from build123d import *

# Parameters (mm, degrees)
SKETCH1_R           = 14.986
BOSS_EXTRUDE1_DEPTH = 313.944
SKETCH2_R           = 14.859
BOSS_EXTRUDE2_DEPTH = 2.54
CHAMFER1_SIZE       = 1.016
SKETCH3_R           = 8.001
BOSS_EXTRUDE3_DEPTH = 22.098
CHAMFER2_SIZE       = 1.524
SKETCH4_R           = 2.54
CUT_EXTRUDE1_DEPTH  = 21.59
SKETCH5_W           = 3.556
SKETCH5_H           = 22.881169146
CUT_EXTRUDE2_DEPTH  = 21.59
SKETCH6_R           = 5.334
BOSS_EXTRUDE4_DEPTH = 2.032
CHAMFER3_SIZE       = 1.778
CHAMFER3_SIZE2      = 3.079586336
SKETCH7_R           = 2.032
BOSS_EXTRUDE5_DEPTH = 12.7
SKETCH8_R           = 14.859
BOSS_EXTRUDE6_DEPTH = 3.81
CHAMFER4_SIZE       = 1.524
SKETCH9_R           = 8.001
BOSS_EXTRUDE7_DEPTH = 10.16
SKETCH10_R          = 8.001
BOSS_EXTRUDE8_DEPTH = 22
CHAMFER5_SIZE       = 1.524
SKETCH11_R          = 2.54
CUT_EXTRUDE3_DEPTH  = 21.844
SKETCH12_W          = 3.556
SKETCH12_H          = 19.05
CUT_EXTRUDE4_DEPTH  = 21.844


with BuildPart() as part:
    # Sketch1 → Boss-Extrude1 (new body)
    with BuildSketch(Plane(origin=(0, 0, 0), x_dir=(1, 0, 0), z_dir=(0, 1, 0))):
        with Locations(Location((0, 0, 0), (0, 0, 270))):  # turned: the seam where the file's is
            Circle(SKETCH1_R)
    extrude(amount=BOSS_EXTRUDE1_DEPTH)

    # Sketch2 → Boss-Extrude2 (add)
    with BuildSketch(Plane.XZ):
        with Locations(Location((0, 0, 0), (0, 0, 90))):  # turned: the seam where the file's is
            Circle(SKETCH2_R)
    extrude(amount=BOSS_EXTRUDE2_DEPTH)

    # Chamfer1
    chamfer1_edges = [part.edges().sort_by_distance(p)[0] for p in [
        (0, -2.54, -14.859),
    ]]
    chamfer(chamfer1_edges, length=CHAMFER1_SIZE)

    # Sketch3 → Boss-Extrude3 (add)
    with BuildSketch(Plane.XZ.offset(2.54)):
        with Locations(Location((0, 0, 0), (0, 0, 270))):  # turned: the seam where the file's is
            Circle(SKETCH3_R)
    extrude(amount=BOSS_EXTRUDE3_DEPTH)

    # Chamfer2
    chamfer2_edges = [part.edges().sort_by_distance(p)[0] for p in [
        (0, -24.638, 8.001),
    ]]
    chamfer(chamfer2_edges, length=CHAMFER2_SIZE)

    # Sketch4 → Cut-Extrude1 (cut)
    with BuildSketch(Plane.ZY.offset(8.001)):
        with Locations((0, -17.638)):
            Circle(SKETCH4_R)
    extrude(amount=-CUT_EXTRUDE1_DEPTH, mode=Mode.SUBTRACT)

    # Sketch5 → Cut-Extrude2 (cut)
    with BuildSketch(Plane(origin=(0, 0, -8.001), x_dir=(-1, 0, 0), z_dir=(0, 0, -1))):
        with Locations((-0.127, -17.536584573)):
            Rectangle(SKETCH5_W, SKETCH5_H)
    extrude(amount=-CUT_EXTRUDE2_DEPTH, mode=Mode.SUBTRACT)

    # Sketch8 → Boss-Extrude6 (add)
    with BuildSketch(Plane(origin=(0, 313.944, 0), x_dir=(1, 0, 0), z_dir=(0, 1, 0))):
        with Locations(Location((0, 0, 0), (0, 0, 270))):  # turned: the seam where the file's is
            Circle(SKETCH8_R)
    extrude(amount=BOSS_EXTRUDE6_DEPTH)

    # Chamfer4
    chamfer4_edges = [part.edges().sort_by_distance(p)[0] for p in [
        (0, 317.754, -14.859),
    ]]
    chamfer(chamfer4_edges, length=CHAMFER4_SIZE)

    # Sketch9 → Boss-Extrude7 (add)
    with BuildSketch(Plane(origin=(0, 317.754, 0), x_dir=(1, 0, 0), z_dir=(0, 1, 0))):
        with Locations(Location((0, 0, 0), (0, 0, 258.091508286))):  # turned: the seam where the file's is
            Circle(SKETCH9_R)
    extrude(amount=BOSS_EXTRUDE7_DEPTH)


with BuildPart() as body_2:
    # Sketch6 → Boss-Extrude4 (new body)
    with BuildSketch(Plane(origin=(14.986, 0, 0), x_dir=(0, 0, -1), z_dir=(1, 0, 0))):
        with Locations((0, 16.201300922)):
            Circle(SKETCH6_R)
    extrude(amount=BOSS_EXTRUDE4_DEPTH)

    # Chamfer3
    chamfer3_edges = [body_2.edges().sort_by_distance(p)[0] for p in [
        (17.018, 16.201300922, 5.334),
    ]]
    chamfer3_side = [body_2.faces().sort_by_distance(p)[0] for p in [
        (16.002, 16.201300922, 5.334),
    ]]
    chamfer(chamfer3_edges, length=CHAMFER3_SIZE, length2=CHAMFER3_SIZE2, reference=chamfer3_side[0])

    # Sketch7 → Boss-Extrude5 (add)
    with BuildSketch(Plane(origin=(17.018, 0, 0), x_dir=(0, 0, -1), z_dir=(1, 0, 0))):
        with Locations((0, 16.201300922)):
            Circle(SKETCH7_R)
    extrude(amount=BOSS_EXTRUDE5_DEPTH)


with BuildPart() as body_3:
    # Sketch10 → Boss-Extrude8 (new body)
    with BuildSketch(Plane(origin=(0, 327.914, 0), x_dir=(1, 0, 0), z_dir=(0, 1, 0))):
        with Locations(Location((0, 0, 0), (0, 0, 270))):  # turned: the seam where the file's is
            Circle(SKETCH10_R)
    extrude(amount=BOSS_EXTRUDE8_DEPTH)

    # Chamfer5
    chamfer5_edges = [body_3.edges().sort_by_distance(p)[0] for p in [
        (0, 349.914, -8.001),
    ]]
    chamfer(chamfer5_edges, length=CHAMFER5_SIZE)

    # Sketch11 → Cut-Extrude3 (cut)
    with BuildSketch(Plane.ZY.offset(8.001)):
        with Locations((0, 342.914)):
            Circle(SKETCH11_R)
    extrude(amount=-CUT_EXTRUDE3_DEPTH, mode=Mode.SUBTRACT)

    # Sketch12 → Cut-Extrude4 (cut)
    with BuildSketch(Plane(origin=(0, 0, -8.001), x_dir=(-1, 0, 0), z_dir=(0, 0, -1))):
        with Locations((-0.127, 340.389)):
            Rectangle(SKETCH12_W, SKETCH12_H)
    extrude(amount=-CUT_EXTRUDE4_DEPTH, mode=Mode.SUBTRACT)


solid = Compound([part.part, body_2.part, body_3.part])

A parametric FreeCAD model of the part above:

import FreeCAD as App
import Part
import Sketcher

V = App.Vector
Q = App.Units.Quantity


def edges_at(feature, points):
    """Names of the edges that pass closest to the given points."""
    edges = feature.Shape.Edges
    near = lambda p: min(range(len(edges)), key=lambda i: edges[i].distToShape(Part.Vertex(*p))[0])
    return sorted({f"Edge{near(p) + 1}" for p in points})


def add_polygon(sketch, points):
    """Adds a closed chain of lines whose ends are joined by coincident constraints."""
    first, n = sketch.GeometryCount, len(points)
    for a, b in zip(points, points[1:] + points[:1]):
        sketch.addGeometry(Part.LineSegment(App.Vector(*a, 0), App.Vector(*b, 0)), False)
    for i in range(n):
        sketch.addConstraint(Sketcher.Constraint("Coincident", first + i, 2, first + (i + 1) % n, 1))

doc = App.newDocument("Part")
body = doc.addObject("PartDesign::Body", "Body")

# Sketch on XZ plane
sketch1 = body.newObject("Sketcher::SketchObject", "Sketch")
sketch1.AttachmentSupport = (doc.getObject("XZ_Plane"), [""])
sketch1.MapMode = "FlatFace"
sketch1.addGeometry(Part.Circle(V(0, 0, 0), V(0, 0, 1), 15), False)
sketch1.addConstraint([
    Sketcher.Constraint("Coincident", 0, 3, -1, 1),
    Sketcher.Constraint("Diameter", 0, Q("1.18 in")),
])
pad1 = body.newObject("PartDesign::Pad", "Pad")
pad1.Profile = sketch1
pad1.Length = Q("12.36 in")
pad1.Reversed = True

# Sketch on XZ plane
sketch2 = body.newObject("Sketcher::SketchObject", "Sketch001")
sketch2.AttachmentSupport = (doc.getObject("XZ_Plane"), [""])
sketch2.MapMode = "FlatFace"
sketch2.addGeometry(Part.Circle(V(0, 0, 0), V(0, 0, 1), 15), False)
sketch2.addConstraint([
    Sketcher.Constraint("Coincident", 0, 3, -1, 1),
    Sketcher.Constraint("Diameter", 0, Q("1.17 in")),
])
pad2 = body.newObject("PartDesign::Pad", "Pad001")
pad2.Profile = sketch2
pad2.Length = Q("0.1 in")
doc.recompute()

chamfer = body.newObject("PartDesign::Chamfer", "Chamfer")
chamfer.Base = (pad2, edges_at(pad2, [(0, -2.54, -14.859)]))
chamfer.Size = Q("0.04 in")

# Sketch on XZ plane
sketch3 = body.newObject("Sketcher::SketchObject", "Sketch002")
sketch3.AttachmentSupport = (doc.getObject("XZ_Plane"), [""])
sketch3.MapMode = "FlatFace"
sketch3.AttachmentOffset = App.Placement(V(0, 0, 0.1 * 25.4), App.Rotation())
sketch3.addGeometry(Part.Circle(V(0, 0, 0), V(0, 0, 1), 8), False)
sketch3.addConstraint([
    Sketcher.Constraint("Coincident", 0, 3, -1, 1),
    Sketcher.Constraint("Diameter", 0, Q("0.63 in")),
])
pad3 = body.newObject("PartDesign::Pad", "Pad002")
pad3.Profile = sketch3
pad3.Length = Q("0.87 in")
doc.recompute()

chamfer2 = body.newObject("PartDesign::Chamfer", "Chamfer001")
chamfer2.Base = (pad3, edges_at(pad3, [(0, -24.638, 8.001)]))
chamfer2.Size = Q("0.06 in")

# Sketch on YZ plane
sketch4 = body.newObject("Sketcher::SketchObject", "Sketch003")
sketch4.AttachmentSupport = (doc.getObject("YZ_Plane"), [""])
sketch4.MapMode = "FlatFace"
sketch4.AttachmentOffset = App.Placement(V(0, 0, -0.315 * 25.4), App.Rotation())
sketch4.addGeometry(Part.Circle(V(-17.6, 0, 0), V(0, 0, 1), 2.5), False)
sketch4.addConstraint([
    Sketcher.Constraint("PointOnObject", 0, 3, -1),
    Sketcher.Constraint("Diameter", 0, Q("0.2 in")),
    Sketcher.Constraint("DistanceX", 0, 3, -1, 1, Q("17.638 mm")),
])
pocket1 = body.newObject("PartDesign::Pocket", "Pocket")
pocket1.Profile = sketch4
pocket1.Length = Q("0.85 in")
pocket1.Reversed = True

# Sketch on XY plane
sketch5 = body.newObject("Sketcher::SketchObject", "Sketch004")
sketch5.AttachmentSupport = (doc.getObject("XY_Plane"), [""])
sketch5.MapMode = "FlatFace"
sketch5.AttachmentOffset = App.Placement(V(0, 0, -0.315 * 25.4), App.Rotation())
add_polygon(sketch5, [(1.9, -6.1), (1.9, -29), (-1.7, -29), (-1.7, -6.1)])  # lines 0-3
sketch5.addConstraint([
    Sketcher.Constraint("Vertical", 0),
    Sketcher.Constraint("Horizontal", 1),
    Sketcher.Constraint("Vertical", 2),
    Sketcher.Constraint("Horizontal", 3),
    Sketcher.Constraint("DistanceX", 1, 2, 1, 1, Q("0.14 in")),
    Sketcher.Constraint("DistanceY", 2, 2, -1, 1, Q("0.24 in")),
    Sketcher.Constraint("DistanceX", -1, 1, 0, 2, Q("0.075 in")),
    Sketcher.Constraint("DistanceY", 0, 2, 0, 1, Q("22.881169 mm")),
])
pocket2 = body.newObject("PartDesign::Pocket", "Pocket001")
pocket2.Profile = sketch5
pocket2.Length = Q("0.85 in")
pocket2.Reversed = True

# Sketch on XZ plane
sketch6 = body.newObject("Sketcher::SketchObject", "Sketch005")
sketch6.AttachmentSupport = (doc.getObject("XZ_Plane"), [""])
sketch6.MapMode = "FlatFace"
sketch6.AttachmentOffset = App.Placement(V(0, 0, -12.36 * 25.4), App.Rotation())
sketch6.addGeometry(Part.Circle(V(0, 0, 0), V(0, 0, 1), 15), False)
sketch6.addConstraint([
    Sketcher.Constraint("Coincident", 0, 3, -1, 1),
    Sketcher.Constraint("Diameter", 0, Q("1.17 in")),
])
pad4 = body.newObject("PartDesign::Pad", "Pad003")
pad4.Profile = sketch6
pad4.Length = Q("0.15 in")
pad4.Reversed = True
doc.recompute()

chamfer3 = body.newObject("PartDesign::Chamfer", "Chamfer002")
chamfer3.Base = (pad4, edges_at(pad4, [(0, 317.754, -14.859)]))
chamfer3.Size = Q("0.06 in")

# Sketch on XZ plane
sketch7 = body.newObject("Sketcher::SketchObject", "Sketch006")
sketch7.AttachmentSupport = (doc.getObject("XZ_Plane"), [""])
sketch7.MapMode = "FlatFace"
sketch7.AttachmentOffset = App.Placement(V(0, 0, -12.51 * 25.4), App.Rotation())
sketch7.addGeometry(Part.Circle(V(0, 0, 0), V(0, 0, 1), 8), False)
sketch7.addConstraint([
    Sketcher.Constraint("Coincident", 0, 3, -1, 1),
    Sketcher.Constraint("Diameter", 0, Q("0.63 in")),
])
pad5 = body.newObject("PartDesign::Pad", "Pad004")
pad5.Profile = sketch7
pad5.Length = Q("0.4 in")
pad5.Reversed = True
body2 = doc.addObject("PartDesign::Body", "Body001")

# Sketch on YZ plane
sketch8 = body2.newObject("Sketcher::SketchObject", "Sketch007")
sketch8.AttachmentSupport = (doc.getObject("YZ_Plane001"), [""])
sketch8.MapMode = "FlatFace"
sketch8.AttachmentOffset = App.Placement(V(0, 0, 0.59 * 25.4), App.Rotation())
sketch8.addGeometry(Part.Circle(V(16, 0, 0), V(0, 0, 1), 5), False)
sketch8.addConstraint([
    Sketcher.Constraint("PointOnObject", 0, 3, -1),
    Sketcher.Constraint("Diameter", 0, Q("0.42 in")),
    Sketcher.Constraint("DistanceX", -1, 1, 0, 3, Q("16.201301 mm")),
])
pad6 = body2.newObject("PartDesign::Pad", "Pad005")
pad6.Profile = sketch8
pad6.Length = Q("0.08 in")
doc.recompute()

chamfer4 = body2.newObject("PartDesign::Chamfer", "Chamfer003")
chamfer4.Base = (pad6, edges_at(pad6, [(17.018, 16.201, 5.334)]))
chamfer4.ChamferType = "Two distances"
chamfer4.Size = Q("0.07 in")
chamfer4.Size2 = 3.079586

# Sketch on YZ plane
sketch9 = body2.newObject("Sketcher::SketchObject", "Sketch008")
sketch9.AttachmentSupport = (doc.getObject("YZ_Plane001"), [""])
sketch9.MapMode = "FlatFace"
sketch9.AttachmentOffset = App.Placement(V(0, 0, 0.67 * 25.4), App.Rotation())
sketch9.addGeometry(Part.Circle(V(16.2, 0, 0), V(0, 0, 1), 2), False)
sketch9.addConstraint([
    Sketcher.Constraint("PointOnObject", 0, 3, -1),
    Sketcher.Constraint("Diameter", 0, Q("0.16 in")),
    Sketcher.Constraint("DistanceX", -1, 1, 0, 3, Q("16.201301 mm")),
])
pad7 = body2.newObject("PartDesign::Pad", "Pad006")
pad7.Profile = sketch9
pad7.Length = Q("0.5 in")
body3 = doc.addObject("PartDesign::Body", "Body002")

# Sketch on XZ plane
sketch10 = body3.newObject("Sketcher::SketchObject", "Sketch009")
sketch10.AttachmentSupport = (doc.getObject("XZ_Plane002"), [""])
sketch10.MapMode = "FlatFace"
sketch10.AttachmentOffset = App.Placement(V(0, 0, -12.91 * 25.4), App.Rotation())
sketch10.addGeometry(Part.Circle(V(0, 0, 0), V(0, 0, 1), 8), False)
sketch10.addConstraint([
    Sketcher.Constraint("Coincident", 0, 3, -1, 1),
    Sketcher.Constraint("Diameter", 0, Q("0.63 in")),
])
pad8 = body3.newObject("PartDesign::Pad", "Pad007")
pad8.Profile = sketch10
pad8.Length = 22
pad8.Reversed = True
doc.recompute()

chamfer5 = body3.newObject("PartDesign::Chamfer", "Chamfer004")
chamfer5.Base = (pad8, edges_at(pad8, [(0, 349.914, -8.001)]))
chamfer5.Size = Q("0.06 in")

# Sketch on YZ plane
sketch11 = body3.newObject("Sketcher::SketchObject", "Sketch010")
sketch11.AttachmentSupport = (doc.getObject("YZ_Plane002"), [""])
sketch11.MapMode = "FlatFace"
sketch11.AttachmentOffset = App.Placement(V(0, 0, -0.315 * 25.4), App.Rotation())
sketch11.addGeometry(Part.Circle(V(342.9, 0, 0), V(0, 0, 1), 2.5), False)
sketch11.addConstraint([
    Sketcher.Constraint("PointOnObject", 0, 3, -1),
    Sketcher.Constraint("Diameter", 0, Q("0.2 in")),
    Sketcher.Constraint("DistanceX", -1, 1, 0, 3, Q("342.914 mm")),
])
pocket3 = body3.newObject("PartDesign::Pocket", "Pocket002")
pocket3.Profile = sketch11
pocket3.Length = Q("0.86 in")
pocket3.Reversed = True

# Sketch on XY plane
sketch12 = body3.newObject("Sketcher::SketchObject", "Sketch011")
sketch12.AttachmentSupport = (doc.getObject("XY_Plane002"), [""])
sketch12.MapMode = "FlatFace"
sketch12.AttachmentOffset = App.Placement(V(0, 0, -0.315 * 25.4), App.Rotation())
add_polygon(sketch12, [(1.9, 349.9), (1.9, 330.9), (-1.7, 330.9), (-1.7, 349.9)])  # lines 0-3
sketch12.addConstraint([
    Sketcher.Constraint("Vertical", 0),
    Sketcher.Constraint("Horizontal", 1),
    Sketcher.Constraint("Vertical", 2),
    Sketcher.Constraint("Horizontal", 3),
    Sketcher.Constraint("DistanceX", 1, 2, 1, 1, Q("0.14 in")),
    Sketcher.Constraint("DistanceY", 0, 2, 0, 1, Q("0.75 in")),
    Sketcher.Constraint("DistanceX", -1, 1, 0, 2, Q("0.075 in")),
    Sketcher.Constraint("DistanceY", -1, 1, 0, 2, Q("330.864 mm")),
])
pocket4 = body3.newObject("PartDesign::Pocket", "Pocket003")
pocket4.Profile = sketch12
pocket4.Length = Q("0.86 in")
pocket4.Reversed = True

doc.recompute()
